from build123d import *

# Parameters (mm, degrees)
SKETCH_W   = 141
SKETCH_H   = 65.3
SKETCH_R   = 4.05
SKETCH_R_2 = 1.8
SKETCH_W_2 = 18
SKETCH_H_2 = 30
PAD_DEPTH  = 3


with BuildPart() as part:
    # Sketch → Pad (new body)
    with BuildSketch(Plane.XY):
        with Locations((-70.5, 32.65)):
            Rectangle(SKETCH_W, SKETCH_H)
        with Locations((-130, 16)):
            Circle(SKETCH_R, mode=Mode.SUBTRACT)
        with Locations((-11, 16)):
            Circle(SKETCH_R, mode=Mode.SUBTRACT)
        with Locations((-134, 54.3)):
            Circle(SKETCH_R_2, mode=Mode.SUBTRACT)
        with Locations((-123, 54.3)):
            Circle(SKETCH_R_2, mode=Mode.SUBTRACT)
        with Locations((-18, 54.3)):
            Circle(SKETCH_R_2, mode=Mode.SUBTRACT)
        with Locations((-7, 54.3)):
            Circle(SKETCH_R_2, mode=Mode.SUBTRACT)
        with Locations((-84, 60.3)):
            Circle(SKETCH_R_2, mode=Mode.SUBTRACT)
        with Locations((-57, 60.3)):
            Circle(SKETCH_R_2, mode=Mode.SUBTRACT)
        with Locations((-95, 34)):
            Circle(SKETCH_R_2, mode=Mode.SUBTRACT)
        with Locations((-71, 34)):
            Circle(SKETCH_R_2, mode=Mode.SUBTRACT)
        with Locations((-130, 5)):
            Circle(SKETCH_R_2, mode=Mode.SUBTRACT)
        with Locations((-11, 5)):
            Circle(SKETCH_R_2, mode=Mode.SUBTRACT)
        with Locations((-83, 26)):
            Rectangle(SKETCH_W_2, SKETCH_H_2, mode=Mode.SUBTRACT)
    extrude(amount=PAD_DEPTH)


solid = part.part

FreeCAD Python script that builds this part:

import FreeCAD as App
import Part
import Sketcher
Q = App.Units.Quantity


def add_polygon(sketch, points):
    """Adds a closed chain of lines whose ends are joined by coincident constraints."""
    first, n = sketch.GeometryCount, len(points)
    for a, b in zip(points, points[1:] + points[:1]):
        sketch.addGeometry(Part.LineSegment(App.Vector(*a, 0), App.Vector(*b, 0)), False)
    for i in range(n):
        sketch.addConstraint(Sketcher.Constraint("Coincident", first + i, 2, first + (i + 1) % n, 1))

doc = App.newDocument("Part")
params = doc.addObject("Spreadsheet::Sheet", "Params")
for row, (alias, value) in enumerate([
    ("sketch1_diameter", "3.6 mm"),
    ("sketch1_diameter2", "8.1 mm"),
    ("sketch1_width", "141 mm"),
    ("sketch1_width2", "18 mm"),
    ("sketch1_height", "30 mm"),
    ("pad1_length", "3 mm"),
], start=1):
    params.set(f"A{row}", alias)
    params.set(f"B{row}", "=" + value)
    params.setAlias(f"B{row}", alias)

body = doc.addObject("PartDesign::Body", "Body")

# Sketch on XY plane
sketch1 = body.newObject("Sketcher::SketchObject", "Sketch")
sketch1.AttachmentSupport = (doc.getObject("XY_Plane"), [""])
sketch1.MapMode = "FlatFace"
add_polygon(sketch1, [(-141, 65.3), (-141, 0), (0, 0), (0, 65.3)])  # lines 0-3
sketch1.addGeometry(Part.Circle(App.Vector(-130, 5, 0), App.Vector(0, 0, 1), 1.8), False)  # 4
sketch1.addGeometry(Part.Circle(App.Vector(-130, 16, 0), App.Vector(0, 0, 1), 4), False)  # 5
add_polygon(sketch1, [(-74, 11), (-92, 11), (-92, 41), (-74, 41)])  # lines 6-9
sketch1.addGeometry(Part.Circle(App.Vector(-11, 5, 0), App.Vector(0, 0, 1), 1.8), False)  # 10
sketch1.addGeometry(Part.Circle(App.Vector(-11, 16, 0), App.Vector(0, 0, 1), 4), False)  # 11
sketch1.addGeometry(Part.Circle(App.Vector(-95, 34, 0), App.Vector(0, 0, 1), 1.8), False)  # 12
sketch1.addGeometry(Part.Circle(App.Vector(-71, 34, 0), App.Vector(0, 0, 1), 1.8), False)  # 13
sketch1.addGeometry(Part.Circle(App.Vector(-134, 54.3, 0), App.Vector(0, 0, 1), 1.8), False)  # 14
sketch1.addGeometry(Part.Circle(App.Vector(-123, 54.3, 0), App.Vector(0, 0, 1), 1.8), False)  # 15
sketch1.addGeometry(Part.Circle(App.Vector(-84, 60.3, 0), App.Vector(0, 0, 1), 1.8), False)  # 16
sketch1.addGeometry(Part.Circle(App.Vector(-57, 60.3, 0), App.Vector(0, 0, 1), 1.8), False)  # 17
sketch1.addGeometry(Part.Circle(App.Vector(-18, 54.3, 0), App.Vector(0, 0, 1), 1.8), False)  # 18
sketch1.addGeometry(Part.Circle(App.Vector(-7, 54.3, 0), App.Vector(0, 0, 1), 1.8), False)  # 19
sketch1.addConstraint(Sketcher.Constraint("Vertical", 0))
sketch1.addConstraint(Sketcher.Constraint("Horizontal", 1))
sketch1.addConstraint(Sketcher.Constraint("Vertical", 2))
sketch1.addConstraint(Sketcher.Constraint("Horizontal", 3))
sketch1.addConstraint(Sketcher.Constraint("Horizontal", 6))
sketch1.addConstraint(Sketcher.Constraint("Vertical", 7))
sketch1.addConstraint(Sketcher.Constraint("Horizontal", 8))
sketch1.addConstraint(Sketcher.Constraint("Vertical", 9))
sketch1.addConstraint(Sketcher.Constraint("Coincident", 1, 2, -1, 1))
sketch1.addConstraint(Sketcher.Constraint("Equal", 4, 10))
sketch1.addConstraint(Sketcher.Constraint("Equal", 5, 11))
sketch1.addConstraint(Sketcher.Constraint("Equal", 10, 12))
sketch1.addConstraint(Sketcher.Constraint("Equal", 12, 13))
sketch1.addConstraint(Sketcher.Constraint("Equal", 13, 14))
sketch1.addConstraint(Sketcher.Constraint("Equal", 14, 15))
sketch1.addConstraint(Sketcher.Constraint("Equal", 15, 16))
sketch1.addConstraint(Sketcher.Constraint("Equal", 16, 17))
sketch1.addConstraint(Sketcher.Constraint("Equal", 17, 18))
sketch1.addConstraint(Sketcher.Constraint("Equal", 18, 19))
sketch1.addConstraint(Sketcher.Constraint("Horizontal", 4, 3, 10, 3))
sketch1.addConstraint(Sketcher.Constraint("Horizontal", 5, 3, 11, 3))
sketch1.addConstraint(Sketcher.Constraint("Horizontal", 12, 3, 13, 3))
sketch1.addConstraint(Sketcher.Constraint("Horizontal", 14, 3, 15, 3))
sketch1.addConstraint(Sketcher.Constraint("Horizontal", 16, 3, 17, 3))
sketch1.addConstraint(Sketcher.Constraint("Horizontal", 15, 3, 18, 3))
sketch1.addConstraint(Sketcher.Constraint("Horizontal", 18, 3, 19, 3))
sketch1.addConstraint(Sketcher.Constraint("Vertical", 4, 3, 5, 3))
sketch1.addConstraint(Sketcher.Constraint("Vertical", 10, 3, 11, 3))
sketch1.addConstraint(Sketcher.Constraint("Diameter", 4, Q("3.6 mm")))
sketch1.addConstraint(Sketcher.Constraint("Diameter", 5, Q("8.1 mm")))
sketch1.addConstraint(Sketcher.Constraint("DistanceX", 1, 1, 1, 2, Q("141 mm")))
sketch1.addConstraint(Sketcher.Constraint("DistanceX", 6, 2, 6, 1, Q("18 mm")))
sketch1.addConstraint(Sketcher.Constraint("DistanceY", 7, 1, 7, 2, Q("30 mm")))
sketch1.addConstraint(Sketcher.Constraint("DistanceY", 0, 2, 0, 1, Q("65.3 mm")))
sketch1.addConstraint(Sketcher.Constraint("DistanceX", 4, 3, -1, 1, Q("130 mm")))
sketch1.addConstraint(Sketcher.Constraint("DistanceY", -1, 1, 4, 3, Q("5 mm")))
sketch1.addConstraint(Sketcher.Constraint("DistanceY", -1, 1, 5, 3, Q("16 mm")))
sketch1.addConstraint(Sketcher.Constraint("DistanceX", 10, 3, -1, 1, Q("11 mm")))
sketch1.addConstraint(Sketcher.Constraint("DistanceX", 12, 3, -1, 1, Q("95 mm")))
sketch1.addConstraint(Sketcher.Constraint("DistanceY", -1, 1, 12, 3, Q("34 mm")))
sketch1.addConstraint(Sketcher.Constraint("DistanceX", 13, 3, -1, 1, Q("71 mm")))
sketch1.addConstraint(Sketcher.Constraint("DistanceX", 14, 3, -1, 1, Q("134 mm")))
sketch1.addConstraint(Sketcher.Constraint("DistanceX", 15, 3, -1, 1, Q("123 mm")))
sketch1.addConstraint(Sketcher.Constraint("DistanceX", 16, 3, -1, 1, Q("84 mm")))
sketch1.addConstraint(Sketcher.Constraint("DistanceX", 17, 3, -1, 1, Q("57 mm")))
sketch1.addConstraint(Sketcher.Constraint("DistanceX", 18, 3, -1, 1, Q("18 mm")))
sketch1.addConstraint(Sketcher.Constraint("DistanceX", 19, 3, -1, 1, Q("7 mm")))
sketch1.addConstraint(Sketcher.Constraint("DistanceX", 6, 2, -1, 1, Q("92 mm")))
sketch1.addConstraint(Sketcher.Constraint("DistanceY", -1, 1, 6, 2, Q("11 mm")))
sketch1.addConstraint(Sketcher.Constraint("DistanceY", 15, 3, 16, 3, Q("6 mm")))
sketch1.addConstraint(Sketcher.Constraint("DistanceY", 19, 3, 2, 2, Q("11 mm")))
sketch1.setExpression("Constraints[36]", "Params.sketch1_diameter")
sketch1.setExpression("Constraints[37]", "Params.sketch1_diameter2")
sketch1.setExpression("Constraints[38]", "Params.sketch1_width")
sketch1.setExpression("Constraints[39]", "Params.sketch1_width2")
sketch1.setExpression("Constraints[40]", "Params.sketch1_height")
pad1 = body.newObject("PartDesign::Pad", "Pad")
pad1.Profile = sketch1
pad1.setExpression("Length", "Params.pad1_length")

doc.recompute()
